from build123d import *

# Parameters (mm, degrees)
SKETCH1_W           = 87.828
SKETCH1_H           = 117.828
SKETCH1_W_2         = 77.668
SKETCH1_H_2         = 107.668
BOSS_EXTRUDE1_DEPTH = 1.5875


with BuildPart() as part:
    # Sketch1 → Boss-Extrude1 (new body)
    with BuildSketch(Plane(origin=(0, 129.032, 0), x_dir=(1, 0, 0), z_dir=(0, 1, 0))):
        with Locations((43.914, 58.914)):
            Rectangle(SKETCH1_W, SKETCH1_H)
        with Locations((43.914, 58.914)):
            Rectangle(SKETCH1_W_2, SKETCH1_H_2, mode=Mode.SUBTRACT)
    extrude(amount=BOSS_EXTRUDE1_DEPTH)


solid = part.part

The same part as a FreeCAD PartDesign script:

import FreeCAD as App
import Part
import Sketcher
Q = App.Units.Quantity

doc = App.newDocument("Part")
params = doc.addObject("Spreadsheet::Sheet", "Params")
for row, (alias, value) in enumerate([
    ("pad1_length", "0.0625 in"),
], start=1):
    params.set(f"A{row}", alias)
    params.set(f"B{row}", "=" + value)
    params.setAlias(f"B{row}", alias)

body = doc.addObject("PartDesign::Body", "Body")

# Sketch on XZ plane
sketch1 = doc.addObject("Sketcher::SketchObject", "Sketch")
body.addObject(sketch1)
sketch1.AttachmentSupport = (doc.XZ_Plane, [""])
sketch1.MapMode = "FlatFace"
sketch1.AttachmentOffset = App.Placement(App.Vector(0, 0, -5.08 * 25.4), App.Rotation())
sketch1.addGeometry(Part.LineSegment(App.Vector(0, -118, 0), App.Vector(0, 0, 0)), False)
sketch1.addGeometry(Part.LineSegment(App.Vector(0, 0, 0), App.Vector(88, 0, 0)), False)
sketch1.addGeometry(Part.LineSegment(App.Vector(88, 0, 0), App.Vector(88, -118, 0)), False)
sketch1.addGeometry(Part.LineSegment(App.Vector(88, -118, 0), App.Vector(0, -118, 0)), False)
sketch1.addGeometry(Part.LineSegment(App.Vector(83, -5, 0), App.Vector(5, -5, 0)), False)
sketch1.addGeometry(Part.LineSegment(App.Vector(5, -5, 0), App.Vector(5, -113, 0)), False)
sketch1.addGeometry(Part.LineSegment(App.Vector(5, -113, 0), App.Vector(83, -113, 0)), False)
sketch1.addGeometry(Part.LineSegment(App.Vector(83, -113, 0), App.Vector(83, -5, 0)), False)
sketch1.addConstraint(Sketcher.Constraint("Coincident", 0, 2, 1, 1))
sketch1.addConstraint(Sketcher.Constraint("Coincident", 1, 2, 2, 1))
sketch1.addConstraint(Sketcher.Constraint("Coincident", 2, 2, 3, 1))
sketch1.addConstraint(Sketcher.Constraint("Coincident", 3, 2, 0, 1))
sketch1.addConstraint(Sketcher.Constraint("Coincident", 4, 2, 5, 1))
sketch1.addConstraint(Sketcher.Constraint("Coincident", 5, 2, 6, 1))
sketch1.addConstraint(Sketcher.Constraint("Coincident", 6, 2, 7, 1))
sketch1.addConstraint(Sketcher.Constraint("Coincident", 7, 2, 4, 1))
sketch1.addConstraint(Sketcher.Constraint("Vertical", 0))
sketch1.addConstraint(Sketcher.Constraint("Horizontal", 1))
sketch1.addConstraint(Sketcher.Constraint("Vertical", 2))
sketch1.addConstraint(Sketcher.Constraint("Horizontal", 3))
sketch1.addConstraint(Sketcher.Constraint("Horizontal", 4))
sketch1.addConstraint(Sketcher.Constraint("Vertical", 5))
sketch1.addConstraint(Sketcher.Constraint("Horizontal", 6))
sketch1.addConstraint(Sketcher.Constraint("Vertical", 7))
sketch1.addConstraint(Sketcher.Constraint("Coincident", 0, 2, -1, 1))
sketch1.addConstraint(Sketcher.Constraint("DistanceX", -1, 1, 4, 2, Q("0.2 in")))
sketch1.addConstraint(Sketcher.Constraint("DistanceY", 4, 2, -1, 1, Q("0.2 in")))
sketch1.addConstraint(Sketcher.Constraint("DistanceY", 3, 2, 5, 2, Q("0.2 in")))
sketch1.addConstraint(Sketcher.Constraint("DistanceX", 6, 2, 2, 2, Q("0.2 in")))
sketch1.addConstraint(Sketcher.Constraint("DistanceX", 1, 1, 1, 2, 87.828))
sketch1.addConstraint(Sketcher.Constraint("DistanceY", 0, 1, 0, 2, 117.828))
pad1 = doc.addObject("PartDesign::Pad", "Pad")
body.addObject(pad1)
pad1.Profile = sketch1
pad1.setExpression("Length", "Params.pad1_length")
pad1.Reversed = True

doc.recompute()
